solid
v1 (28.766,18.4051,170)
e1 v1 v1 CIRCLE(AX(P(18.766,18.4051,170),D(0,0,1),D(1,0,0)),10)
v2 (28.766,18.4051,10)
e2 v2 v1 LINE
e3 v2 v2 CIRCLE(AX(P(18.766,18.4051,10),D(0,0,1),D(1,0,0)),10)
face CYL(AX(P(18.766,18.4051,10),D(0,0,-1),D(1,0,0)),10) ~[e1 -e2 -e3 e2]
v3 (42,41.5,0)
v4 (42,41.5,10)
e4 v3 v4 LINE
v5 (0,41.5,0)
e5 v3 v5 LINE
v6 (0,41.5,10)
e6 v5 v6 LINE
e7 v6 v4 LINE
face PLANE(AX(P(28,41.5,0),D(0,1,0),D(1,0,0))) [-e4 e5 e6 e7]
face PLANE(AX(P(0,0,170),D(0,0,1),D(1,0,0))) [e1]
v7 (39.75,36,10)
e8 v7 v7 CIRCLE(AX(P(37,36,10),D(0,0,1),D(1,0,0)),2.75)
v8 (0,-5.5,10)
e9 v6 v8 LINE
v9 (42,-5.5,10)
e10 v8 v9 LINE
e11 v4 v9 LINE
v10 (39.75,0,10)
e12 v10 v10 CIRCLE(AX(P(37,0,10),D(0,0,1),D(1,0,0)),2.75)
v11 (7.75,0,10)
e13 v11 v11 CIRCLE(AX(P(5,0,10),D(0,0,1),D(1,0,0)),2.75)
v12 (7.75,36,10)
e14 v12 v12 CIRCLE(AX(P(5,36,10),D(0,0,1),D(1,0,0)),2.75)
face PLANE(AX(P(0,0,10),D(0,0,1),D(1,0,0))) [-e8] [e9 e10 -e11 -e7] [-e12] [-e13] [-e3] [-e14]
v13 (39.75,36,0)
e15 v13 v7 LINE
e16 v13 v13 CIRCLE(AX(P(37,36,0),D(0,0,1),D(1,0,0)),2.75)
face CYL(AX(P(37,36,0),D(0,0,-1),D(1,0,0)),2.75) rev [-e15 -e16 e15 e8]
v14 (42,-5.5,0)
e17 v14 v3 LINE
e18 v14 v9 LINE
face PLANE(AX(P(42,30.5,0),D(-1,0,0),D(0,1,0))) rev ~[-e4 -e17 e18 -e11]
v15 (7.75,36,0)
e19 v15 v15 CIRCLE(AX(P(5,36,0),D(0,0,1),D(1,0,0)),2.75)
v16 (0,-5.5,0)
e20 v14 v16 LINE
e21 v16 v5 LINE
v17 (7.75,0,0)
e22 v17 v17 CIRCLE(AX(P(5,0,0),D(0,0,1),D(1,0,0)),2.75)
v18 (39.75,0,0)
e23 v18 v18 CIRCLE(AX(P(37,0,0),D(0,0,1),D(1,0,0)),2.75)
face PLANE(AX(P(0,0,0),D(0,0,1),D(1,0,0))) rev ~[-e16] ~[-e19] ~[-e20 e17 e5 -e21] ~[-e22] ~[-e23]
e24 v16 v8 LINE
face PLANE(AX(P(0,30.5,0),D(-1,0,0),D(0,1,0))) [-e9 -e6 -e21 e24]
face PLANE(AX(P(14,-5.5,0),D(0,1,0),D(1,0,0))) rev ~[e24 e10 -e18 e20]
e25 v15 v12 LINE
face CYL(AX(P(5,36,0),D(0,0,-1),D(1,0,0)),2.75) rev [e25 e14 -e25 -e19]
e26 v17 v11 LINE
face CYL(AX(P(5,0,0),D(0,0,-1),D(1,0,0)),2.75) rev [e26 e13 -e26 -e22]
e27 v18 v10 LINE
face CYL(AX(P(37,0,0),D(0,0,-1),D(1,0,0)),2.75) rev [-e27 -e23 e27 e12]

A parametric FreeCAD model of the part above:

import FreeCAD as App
import Part
import Sketcher

V = App.Vector


def add_polygon(sketch, points):
    """Adds a closed chain of lines whose ends are joined by coincident constraints."""
    first, n = sketch.GeometryCount, len(points)
    for a, b in zip(points, points[1:] + points[:1]):
        sketch.addGeometry(Part.LineSegment(App.Vector(*a, 0), App.Vector(*b, 0)), False)
    for i in range(n):
        sketch.addConstraint(Sketcher.Constraint("Coincident", first + i, 2, first + (i + 1) % n, 1))

doc = App.newDocument("Part")
body = doc.addObject("PartDesign::Body", "Body")

# Sketch on XY plane
sketch1 = body.newObject("Sketcher::SketchObject", "Sketch")
sketch1.AttachmentSupport = (doc.getObject("XY_Plane"), [""])
sketch1.MapMode = "FlatFace"
add_polygon(sketch1, [(42, 41.5), (0, 41.5), (0, -5.5), (42, -5.5)])  # lines 0-3
sketch1.addGeometry(Part.Circle(V(37, 36, 0), V(0, 0, 1), 2.8), False)  # 4
sketch1.addGeometry(Part.Circle(V(37, 0, 0), V(0, 0, 1), 2.8), False)  # 5
sketch1.addGeometry(Part.Circle(V(5, 0, 0), V(0, 0, 1), 2.8), False)  # 6
sketch1.addGeometry(Part.Circle(V(5, 36, 0), V(0, 0, 1), 2.8), False)  # 7
sketch1.addConstraint([
    Sketcher.Constraint("Horizontal", 0),
    Sketcher.Constraint("Vertical", 1),
    Sketcher.Constraint("Horizontal", 2),
    Sketcher.Constraint("Vertical", 3),
    Sketcher.Constraint("Equal", 4, 5),
    Sketcher.Constraint("Equal", 5, 6),
    Sketcher.Constraint("Equal", 6, 7),
    Sketcher.Constraint("PointOnObject", 5, 3, -1),
    Sketcher.Constraint("PointOnObject", 6, 3, -1),
    Sketcher.Constraint("PointOnObject", 0, 2, -2),
    Sketcher.Constraint("Horizontal", 4, 3, 7, 3),
    Sketcher.Constraint("Vertical", 4, 3, 5, 3),
    Sketcher.Constraint("Vertical", 6, 3, 7, 3),
    Sketcher.Constraint("Diameter", 4, 5.5),
    Sketcher.Constraint("DistanceX", 0, 2, 0, 1, 42.0),
    Sketcher.Constraint("DistanceY", 1, 2, 1, 1, 47.0),
    Sketcher.Constraint("DistanceX", -1, 1, 4, 3, 37.0),
    Sketcher.Constraint("DistanceY", -1, 1, 4, 3, 36.0),
    Sketcher.Constraint("DistanceX", -1, 1, 6, 3, 5.0),
    Sketcher.Constraint("DistanceY", -1, 1, 0, 2, 41.5),
])
pad1 = body.newObject("PartDesign::Pad", "Pad")
pad1.Profile = sketch1
pad1.Length = 10

# Sketch on XY plane
sketch2 = body.newObject("Sketcher::SketchObject", "Sketch001")
sketch2.AttachmentSupport = (doc.getObject("XY_Plane"), [""])
sketch2.MapMode = "FlatFace"
sketch2.AttachmentOffset = App.Placement(V(0, 0, 10), App.Rotation())
sketch2.addGeometry(Part.Circle(V(19, 18, 0), V(0, 0, 1), 10), False)
sketch2.addConstraint([
    Sketcher.Constraint("Diameter", 0, 20.0),
    Sketcher.Constraint("DistanceX", -1, 1, 0, 3, 18.766),
    Sketcher.Constraint("DistanceY", -1, 1, 0, 3, 18.405),
])
pad2 = body.newObject("PartDesign::Pad", "Pad001")
pad2.Profile = sketch2
pad2.Length = 160

doc.recompute()
